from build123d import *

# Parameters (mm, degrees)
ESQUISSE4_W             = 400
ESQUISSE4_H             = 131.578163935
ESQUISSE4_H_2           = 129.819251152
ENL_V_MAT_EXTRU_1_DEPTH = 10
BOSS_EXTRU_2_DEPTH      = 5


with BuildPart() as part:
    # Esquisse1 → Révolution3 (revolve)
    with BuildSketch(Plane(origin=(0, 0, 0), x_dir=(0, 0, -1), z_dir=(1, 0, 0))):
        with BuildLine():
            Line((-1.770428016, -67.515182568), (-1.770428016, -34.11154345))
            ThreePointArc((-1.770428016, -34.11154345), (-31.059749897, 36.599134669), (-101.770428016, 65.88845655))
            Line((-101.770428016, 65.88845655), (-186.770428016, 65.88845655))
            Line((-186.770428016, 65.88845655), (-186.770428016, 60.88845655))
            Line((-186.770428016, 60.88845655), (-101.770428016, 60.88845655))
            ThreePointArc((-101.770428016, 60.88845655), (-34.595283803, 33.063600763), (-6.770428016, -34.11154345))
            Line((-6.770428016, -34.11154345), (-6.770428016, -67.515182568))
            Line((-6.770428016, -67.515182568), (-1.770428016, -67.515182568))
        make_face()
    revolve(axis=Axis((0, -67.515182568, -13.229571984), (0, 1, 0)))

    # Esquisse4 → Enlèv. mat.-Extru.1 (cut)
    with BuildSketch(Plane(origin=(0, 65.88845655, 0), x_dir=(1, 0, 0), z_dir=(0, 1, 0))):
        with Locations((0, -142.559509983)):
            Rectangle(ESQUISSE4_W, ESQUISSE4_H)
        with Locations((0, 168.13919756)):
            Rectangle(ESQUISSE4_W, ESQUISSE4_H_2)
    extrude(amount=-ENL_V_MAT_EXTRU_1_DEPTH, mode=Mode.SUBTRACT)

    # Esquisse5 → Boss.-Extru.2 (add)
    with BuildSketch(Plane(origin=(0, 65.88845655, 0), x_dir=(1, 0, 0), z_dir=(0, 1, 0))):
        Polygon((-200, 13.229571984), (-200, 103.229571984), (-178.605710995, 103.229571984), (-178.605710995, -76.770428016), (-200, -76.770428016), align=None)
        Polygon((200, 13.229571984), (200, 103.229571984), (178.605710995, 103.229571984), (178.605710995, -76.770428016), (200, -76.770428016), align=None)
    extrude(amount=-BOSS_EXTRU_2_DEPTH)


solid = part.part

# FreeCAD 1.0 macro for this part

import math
import FreeCAD as App
import Part
import Sketcher


def add_polygon(sketch, points):
    """Adds a closed chain of lines whose ends are joined by coincident constraints."""
    first, n = sketch.GeometryCount, len(points)
    for a, b in zip(points, points[1:] + points[:1]):
        sketch.addGeometry(Part.LineSegment(App.Vector(*a, 0), App.Vector(*b, 0)), False)
    for i in range(n):
        sketch.addConstraint(Sketcher.Constraint("Coincident", first + i, 2, first + (i + 1) % n, 1))

doc = App.newDocument("Part")
body = doc.addObject("PartDesign::Body", "Body")

# Sketch on YZ plane
sketch1 = doc.addObject("Sketcher::SketchObject", "Sketch")
body.addObject(sketch1)
sketch1.AttachmentSupport = (doc.YZ_Plane, [""])
sketch1.MapMode = "FlatFace"
sketch1.addGeometry(Part.LineSegment(App.Vector(-68, 2, 0), App.Vector(-34, 2, 0)), False)
sketch1.addGeometry(Part.ArcOfCircle(Part.Circle(App.Vector(-34, 102, 0), App.Vector(0, 0, 1), 100), math.radians(-90), math.radians(0)), False)
sketch1.addGeometry(Part.LineSegment(App.Vector(66, 102, 0), App.Vector(66, 187, 0)), False)
sketch1.addGeometry(Part.LineSegment(App.Vector(66, 187, 0), App.Vector(61, 187, 0)), False)
sketch1.addGeometry(Part.LineSegment(App.Vector(61, 187, 0), App.Vector(61, 102, 0)), False)
sketch1.addGeometry(Part.ArcOfCircle(Part.Circle(App.Vector(-34, 102, 0), App.Vector(0, 0, 1), 95), math.radians(-90), math.radians(0)), False)
sketch1.addGeometry(Part.LineSegment(App.Vector(-34, 7, 0), App.Vector(-68, 7, 0)), False)
sketch1.addGeometry(Part.LineSegment(App.Vector(-68, 7, 0), App.Vector(-68, 2, 0)), False)
sketch1.addGeometry(Part.LineSegment(App.Vector(-68, -13, 0), App.Vector(66, -13, 0)), True)  # axis
sketch1.addConstraint(Sketcher.Constraint("Tangent", 0, 2, 1, 1))
sketch1.addConstraint(Sketcher.Constraint("Tangent", 1, 2, 2, 1))
sketch1.addConstraint(Sketcher.Constraint("Coincident", 2, 2, 3, 1))
sketch1.addConstraint(Sketcher.Constraint("Coincident", 3, 2, 4, 1))
sketch1.addConstraint(Sketcher.Constraint("Tangent", 4, 2, 5, 2))
sketch1.addConstraint(Sketcher.Constraint("Tangent", 5, 1, 6, 1))
sketch1.addConstraint(Sketcher.Constraint("Coincident", 6, 2, 7, 1))
sketch1.addConstraint(Sketcher.Constraint("Coincident", 7, 2, 0, 1))
sketch1.addConstraint(Sketcher.Constraint("Horizontal", 0))
sketch1.addConstraint(Sketcher.Constraint("Vertical", 2))
sketch1.addConstraint(Sketcher.Constraint("Horizontal", 3))
sketch1.addConstraint(Sketcher.Constraint("Vertical", 4))
sketch1.addConstraint(Sketcher.Constraint("Horizontal", 6))
sketch1.addConstraint(Sketcher.Constraint("Vertical", 7))
sketch1.addConstraint(Sketcher.Constraint("Horizontal", 8))
sketch1.addConstraint(Sketcher.Constraint("Coincident", 5, 3, 1, 3))
sketch1.addConstraint(Sketcher.Constraint("Vertical", 7, 2, 8, 1))
sketch1.addConstraint(Sketcher.Constraint("Vertical", 2, 2, 8, 2))
sketch1.addConstraint(Sketcher.Constraint("Radius", 1, 100.0))
sketch1.addConstraint(Sketcher.Constraint("Radius", 5, 95.0))
sketch1.addConstraint(Sketcher.Constraint("DistanceY", 2, 1, 2, 2, 85.0))
sketch1.addConstraint(Sketcher.Constraint("DistanceY", 8, 1, 7, 2, 15.0))
sketch1.addConstraint(Sketcher.Constraint("DistanceX", 0, 1, 0, 2, 33.403639))
sketch1.addConstraint(Sketcher.Constraint("DistanceY", -1, 1, 1, 3, 101.770428))
sketch1.addConstraint(Sketcher.Constraint("DistanceX", 1, 3, -1, 1, 34.111543))
revolution = doc.addObject("PartDesign::Revolution", "Revolution")
body.addObject(revolution)
revolution.Profile = sketch1
revolution.ReferenceAxis = (sketch1, ["Axis0"])
revolution.Angle = 360

# Sketch on XZ plane
sketch2 = doc.addObject("Sketcher::SketchObject", "Sketch001")
body.addObject(sketch2)
sketch2.AttachmentSupport = (doc.XZ_Plane, [""])
sketch2.MapMode = "FlatFace"
sketch2.AttachmentOffset = App.Placement(App.Vector(0, 0, -65.888457), App.Rotation())
add_polygon(sketch2, [(-200, 77), (-200, 208), (200, 208), (200, 77)])  # lines 0-3
add_polygon(sketch2, [(-200, -233), (-200, -103), (200, -103), (200, -233)])  # lines 4-7
sketch2.addConstraint(Sketcher.Constraint("Vertical", 0))
sketch2.addConstraint(Sketcher.Constraint("Horizontal", 1))
sketch2.addConstraint(Sketcher.Constraint("Vertical", 2))
sketch2.addConstraint(Sketcher.Constraint("Horizontal", 3))
sketch2.addConstraint(Sketcher.Constraint("Vertical", 4))
sketch2.addConstraint(Sketcher.Constraint("Horizontal", 5))
sketch2.addConstraint(Sketcher.Constraint("Vertical", 6))
sketch2.addConstraint(Sketcher.Constraint("Horizontal", 7))
sketch2.addConstraint(Sketcher.Constraint("Vertical", 3, 2, 4, 2))
sketch2.addConstraint(Sketcher.Constraint("Vertical", 2, 2, 5, 2))
sketch2.addConstraint(Sketcher.Constraint("DistanceX", 1, 1, 1, 2, 400.0))
sketch2.addConstraint(Sketcher.Constraint("DistanceX", 0, 2, -1, 1, 200.0))
sketch2.addConstraint(Sketcher.Constraint("DistanceY", 4, 2, 3, 2, 180.0))
sketch2.addConstraint(Sketcher.Constraint("DistanceY", 4, 1, 4, 2, 129.819251))
sketch2.addConstraint(Sketcher.Constraint("DistanceY", 0, 1, 0, 2, 131.578164))
sketch2.addConstraint(Sketcher.Constraint("DistanceY", -1, 1, 0, 2, 208.348592))
pocket1 = doc.addObject("PartDesign::Pocket", "Pocket")
body.addObject(pocket1)
pocket1.Profile = sketch2
pocket1.Length = 10
pocket1.Reversed = True

# Sketch on XZ plane
sketch3 = doc.addObject("Sketcher::SketchObject", "Sketch002")
body.addObject(sketch3)
sketch3.AttachmentSupport = (doc.XZ_Plane, [""])
sketch3.MapMode = "FlatFace"
sketch3.AttachmentOffset = App.Placement(App.Vector(0, 0, -65.888457), App.Rotation())
add_polygon(sketch3, [(-200, -103), (-200, 77), (-179, 77), (-179, -103)])  # lines 0-3
add_polygon(sketch3, [(200, -103), (179, -103), (179, 77), (200, 77)])  # lines 4-7
sketch3.addConstraint(Sketcher.Constraint("Vertical", 0))
sketch3.addConstraint(Sketcher.Constraint("Horizontal", 1))
sketch3.addConstraint(Sketcher.Constraint("Vertical", 2))
sketch3.addConstraint(Sketcher.Constraint("Horizontal", 3))
sketch3.addConstraint(Sketcher.Constraint("Horizontal", 4))
sketch3.addConstraint(Sketcher.Constraint("Vertical", 5))
sketch3.addConstraint(Sketcher.Constraint("Horizontal", 6))
sketch3.addConstraint(Sketcher.Constraint("Vertical", 7))
sketch3.addConstraint(Sketcher.Constraint("Symmetric", 2, 2, 4, 2, -2))
sketch3.addConstraint(Sketcher.Constraint("Symmetric", 0, 2, 6, 2, -2))
sketch3.addConstraint(Sketcher.Constraint("DistanceY", 0, 1, 0, 2, 180.0))
sketch3.addConstraint(Sketcher.Constraint("DistanceX", 0, 2, -1, 1, 200.0))
sketch3.addConstraint(Sketcher.Constraint("DistanceX", 1, 1, 1, 2, 21.394289))
sketch3.addConstraint(Sketcher.Constraint("DistanceY", -1, 1, 0, 2, 76.770428))
pad1 = doc.addObject("PartDesign::Pad", "Pad")
body.addObject(pad1)
pad1.Profile = sketch3
pad1.Length = 5

doc.recompute()
